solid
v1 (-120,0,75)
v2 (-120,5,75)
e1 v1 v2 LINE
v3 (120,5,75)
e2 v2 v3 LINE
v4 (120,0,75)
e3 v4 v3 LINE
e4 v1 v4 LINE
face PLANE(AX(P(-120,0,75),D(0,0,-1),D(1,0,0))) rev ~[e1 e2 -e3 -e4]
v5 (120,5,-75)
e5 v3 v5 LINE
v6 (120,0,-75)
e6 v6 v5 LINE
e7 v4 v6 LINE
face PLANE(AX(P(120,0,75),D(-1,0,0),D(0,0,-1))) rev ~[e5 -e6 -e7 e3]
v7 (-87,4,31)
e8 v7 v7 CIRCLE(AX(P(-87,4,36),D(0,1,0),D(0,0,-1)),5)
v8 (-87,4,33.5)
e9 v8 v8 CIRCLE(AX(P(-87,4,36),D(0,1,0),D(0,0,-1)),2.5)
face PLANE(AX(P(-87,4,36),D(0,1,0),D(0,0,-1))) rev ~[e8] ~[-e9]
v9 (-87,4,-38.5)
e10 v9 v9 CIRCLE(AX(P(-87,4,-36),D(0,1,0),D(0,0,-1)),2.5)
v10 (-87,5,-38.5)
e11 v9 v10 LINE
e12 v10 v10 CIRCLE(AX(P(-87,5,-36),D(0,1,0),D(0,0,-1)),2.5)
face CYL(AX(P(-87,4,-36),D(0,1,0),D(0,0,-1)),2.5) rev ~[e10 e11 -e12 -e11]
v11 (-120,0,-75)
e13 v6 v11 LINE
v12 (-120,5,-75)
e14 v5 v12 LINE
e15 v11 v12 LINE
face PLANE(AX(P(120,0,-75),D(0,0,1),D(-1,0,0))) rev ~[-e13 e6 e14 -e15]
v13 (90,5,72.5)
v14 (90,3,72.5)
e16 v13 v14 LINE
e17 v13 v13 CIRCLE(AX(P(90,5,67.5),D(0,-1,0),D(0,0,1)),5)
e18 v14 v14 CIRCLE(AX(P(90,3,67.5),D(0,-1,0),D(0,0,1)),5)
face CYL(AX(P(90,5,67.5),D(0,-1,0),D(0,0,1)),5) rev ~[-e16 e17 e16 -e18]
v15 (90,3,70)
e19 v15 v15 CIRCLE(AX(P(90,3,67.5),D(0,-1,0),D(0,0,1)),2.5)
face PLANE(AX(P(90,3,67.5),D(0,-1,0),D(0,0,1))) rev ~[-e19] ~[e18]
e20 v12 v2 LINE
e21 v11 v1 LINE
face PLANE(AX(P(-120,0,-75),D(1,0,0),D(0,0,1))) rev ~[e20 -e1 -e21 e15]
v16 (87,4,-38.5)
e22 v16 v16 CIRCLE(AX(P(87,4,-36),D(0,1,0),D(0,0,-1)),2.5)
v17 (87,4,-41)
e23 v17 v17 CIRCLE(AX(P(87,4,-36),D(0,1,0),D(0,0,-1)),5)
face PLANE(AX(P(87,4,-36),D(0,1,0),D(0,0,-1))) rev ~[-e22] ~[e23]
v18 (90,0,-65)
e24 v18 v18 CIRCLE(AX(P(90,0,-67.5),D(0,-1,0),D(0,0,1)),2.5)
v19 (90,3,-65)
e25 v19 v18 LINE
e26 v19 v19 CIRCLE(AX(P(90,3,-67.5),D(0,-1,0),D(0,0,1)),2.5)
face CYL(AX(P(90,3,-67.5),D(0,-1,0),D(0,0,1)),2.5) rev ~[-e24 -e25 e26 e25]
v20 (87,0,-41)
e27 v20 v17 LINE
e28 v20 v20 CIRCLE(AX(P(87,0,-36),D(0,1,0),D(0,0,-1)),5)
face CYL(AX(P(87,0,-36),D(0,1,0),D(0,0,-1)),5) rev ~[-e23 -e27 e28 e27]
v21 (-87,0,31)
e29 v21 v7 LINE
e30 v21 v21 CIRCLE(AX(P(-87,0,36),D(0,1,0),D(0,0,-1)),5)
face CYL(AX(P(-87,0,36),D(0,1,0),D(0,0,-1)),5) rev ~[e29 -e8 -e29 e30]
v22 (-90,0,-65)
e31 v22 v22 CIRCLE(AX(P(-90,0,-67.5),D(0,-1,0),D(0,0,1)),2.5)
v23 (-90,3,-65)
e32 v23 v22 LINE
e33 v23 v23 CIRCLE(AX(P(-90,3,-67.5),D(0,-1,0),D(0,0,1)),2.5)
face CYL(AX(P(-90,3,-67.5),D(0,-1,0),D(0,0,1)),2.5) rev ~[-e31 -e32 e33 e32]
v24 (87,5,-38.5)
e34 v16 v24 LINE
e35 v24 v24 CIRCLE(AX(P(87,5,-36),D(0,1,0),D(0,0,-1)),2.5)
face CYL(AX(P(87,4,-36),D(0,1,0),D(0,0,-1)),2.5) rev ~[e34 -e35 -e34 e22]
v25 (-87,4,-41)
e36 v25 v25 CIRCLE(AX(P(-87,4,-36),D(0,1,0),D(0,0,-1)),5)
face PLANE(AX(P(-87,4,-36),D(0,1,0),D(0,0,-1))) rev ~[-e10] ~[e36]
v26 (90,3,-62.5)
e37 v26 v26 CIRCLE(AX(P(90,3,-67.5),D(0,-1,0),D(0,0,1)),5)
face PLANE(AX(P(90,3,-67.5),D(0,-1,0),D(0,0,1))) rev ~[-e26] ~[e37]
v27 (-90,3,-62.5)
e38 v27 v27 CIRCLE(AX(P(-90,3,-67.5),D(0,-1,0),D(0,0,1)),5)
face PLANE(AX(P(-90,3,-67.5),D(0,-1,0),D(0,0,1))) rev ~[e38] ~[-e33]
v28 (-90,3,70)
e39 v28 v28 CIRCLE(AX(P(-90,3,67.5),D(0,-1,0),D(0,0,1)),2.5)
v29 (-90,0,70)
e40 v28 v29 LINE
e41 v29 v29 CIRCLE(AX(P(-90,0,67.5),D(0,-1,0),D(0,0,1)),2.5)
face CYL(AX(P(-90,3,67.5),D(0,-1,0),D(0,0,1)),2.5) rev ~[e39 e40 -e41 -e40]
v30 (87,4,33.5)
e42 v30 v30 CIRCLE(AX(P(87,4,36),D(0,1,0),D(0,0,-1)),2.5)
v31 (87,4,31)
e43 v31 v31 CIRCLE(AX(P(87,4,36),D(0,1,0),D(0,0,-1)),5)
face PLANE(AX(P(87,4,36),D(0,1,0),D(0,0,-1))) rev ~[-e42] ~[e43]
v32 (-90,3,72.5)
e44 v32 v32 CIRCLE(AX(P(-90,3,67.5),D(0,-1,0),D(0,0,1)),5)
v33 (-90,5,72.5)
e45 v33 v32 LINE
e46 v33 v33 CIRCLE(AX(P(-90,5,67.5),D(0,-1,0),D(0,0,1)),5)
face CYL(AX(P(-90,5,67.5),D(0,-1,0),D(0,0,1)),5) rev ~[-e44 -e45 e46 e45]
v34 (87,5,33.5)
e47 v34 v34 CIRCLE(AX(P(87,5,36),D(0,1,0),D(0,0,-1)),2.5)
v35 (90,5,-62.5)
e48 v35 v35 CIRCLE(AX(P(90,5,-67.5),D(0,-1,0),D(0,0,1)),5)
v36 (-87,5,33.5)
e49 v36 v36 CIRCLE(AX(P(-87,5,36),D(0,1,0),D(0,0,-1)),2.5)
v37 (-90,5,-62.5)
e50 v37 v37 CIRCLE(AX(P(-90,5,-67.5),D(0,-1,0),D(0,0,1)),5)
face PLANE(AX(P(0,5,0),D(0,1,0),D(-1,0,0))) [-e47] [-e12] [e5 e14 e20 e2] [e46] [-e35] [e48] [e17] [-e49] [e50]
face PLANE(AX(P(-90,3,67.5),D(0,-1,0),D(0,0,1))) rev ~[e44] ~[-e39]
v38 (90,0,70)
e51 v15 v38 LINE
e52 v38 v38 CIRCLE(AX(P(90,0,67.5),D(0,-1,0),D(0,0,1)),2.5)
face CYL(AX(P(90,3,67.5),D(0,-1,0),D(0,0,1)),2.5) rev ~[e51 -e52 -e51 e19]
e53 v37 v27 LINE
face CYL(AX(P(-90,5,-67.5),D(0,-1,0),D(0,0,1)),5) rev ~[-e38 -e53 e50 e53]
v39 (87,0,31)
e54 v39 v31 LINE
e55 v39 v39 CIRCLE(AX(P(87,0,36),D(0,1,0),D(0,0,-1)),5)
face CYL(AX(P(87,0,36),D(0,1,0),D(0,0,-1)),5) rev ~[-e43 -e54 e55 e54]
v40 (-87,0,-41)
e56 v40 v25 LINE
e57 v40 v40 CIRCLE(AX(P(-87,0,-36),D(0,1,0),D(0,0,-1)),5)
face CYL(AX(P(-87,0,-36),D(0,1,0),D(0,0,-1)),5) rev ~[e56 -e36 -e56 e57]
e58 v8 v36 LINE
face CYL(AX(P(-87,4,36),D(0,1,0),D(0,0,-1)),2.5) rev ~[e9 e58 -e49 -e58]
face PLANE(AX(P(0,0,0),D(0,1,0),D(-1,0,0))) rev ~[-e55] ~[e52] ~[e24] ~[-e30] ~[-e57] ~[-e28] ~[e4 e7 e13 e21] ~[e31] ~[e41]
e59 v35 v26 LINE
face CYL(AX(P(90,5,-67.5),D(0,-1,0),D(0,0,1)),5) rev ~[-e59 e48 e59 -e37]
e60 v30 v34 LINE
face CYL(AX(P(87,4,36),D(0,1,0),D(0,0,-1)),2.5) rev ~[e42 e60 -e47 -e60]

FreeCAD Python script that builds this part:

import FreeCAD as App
import Part
import Sketcher

doc = App.newDocument("Part")
params = doc.addObject("Spreadsheet::Sheet", "Params")
for row, (alias, value) in enumerate([
    ("sketch1_width", "240 mm"),
    ("sketch1_height", "150 mm"),
    ("pad1_length", "5 mm"),
    ("sketch2_diameter", "5 mm"),
    ("hole_diameter", "5 mm"),
    ("hole_cbore_diameter", "10 mm"),
    ("hole_cbore_depth", "4 mm"),
    ("sketch3_diameter", "5 mm"),
    ("hole2_diameter", "5 mm"),
    ("hole2_cbore_diameter", "10 mm"),
    ("hole2_cbore_depth", "2 mm"),
], start=1):
    params.set(f"A{row}", alias)
    params.set(f"B{row}", "=" + value)
    params.setAlias(f"B{row}", alias)

body = doc.addObject("PartDesign::Body", "Body")

sketch1 = doc.addObject("Sketcher::SketchObject", "Sketch")
body.addObject(sketch1)
sketch1.AttachmentSupport = (doc.XZ_Plane, [""])
sketch1.MapMode = "FlatFace"
sketch1.addGeometry([
    Part.LineSegment(App.Vector(120, 75, 0), App.Vector(120, -75, 0)),
    Part.LineSegment(App.Vector(120, -75, 0), App.Vector(-120, -75, 0)),
    Part.LineSegment(App.Vector(-120, -75, 0), App.Vector(-120, 75, 0)),
    Part.LineSegment(App.Vector(-120, 75, 0), App.Vector(120, 75, 0)),
], False)
sketch1.addConstraint([
    Sketcher.Constraint("Coincident", 0, 2, 1, 1),
    Sketcher.Constraint("Coincident", 1, 2, 2, 1),
    Sketcher.Constraint("Coincident", 2, 2, 3, 1),
    Sketcher.Constraint("Coincident", 3, 2, 0, 1),
    Sketcher.Constraint("Vertical", 0),
    Sketcher.Constraint("Horizontal", 1),
    Sketcher.Constraint("Vertical", 2),
    Sketcher.Constraint("Horizontal", 3),
    Sketcher.Constraint("Symmetric", 0, 2, 2, 2, -1, 1),
    Sketcher.Constraint("DistanceX", 1, 2, 1, 1, 240.0),
    Sketcher.Constraint("DistanceY", 0, 2, 0, 1, 150.0),
])
sketch1.setExpression("Constraints[9]", "Params.sketch1_width")
sketch1.setExpression("Constraints[10]", "Params.sketch1_height")
pad1 = doc.addObject("PartDesign::Pad", "Pad")
body.addObject(pad1)
pad1.Profile = sketch1
pad1.setExpression("Length", "Params.pad1_length")
pad1.Reversed = True

sketch2 = doc.addObject("Sketcher::SketchObject", "Sketch001")
body.addObject(sketch2)
sketch2.AttachmentSupport = (doc.XZ_Plane, [""])
sketch2.MapMode = "FlatFace"
sketch2.addGeometry([
    Part.Circle(App.Vector(-87, 36, 0), App.Vector(0, 0, 1), 2.5),
    Part.Circle(App.Vector(-87, -36, 0), App.Vector(0, 0, 1), 2.5),
    Part.Circle(App.Vector(87, -36, 0), App.Vector(0, 0, 1), 2.5),
    Part.Circle(App.Vector(87, 36, 0), App.Vector(0, 0, 1), 2.5),
], False)
sketch2.addConstraint([
    Sketcher.Constraint("Equal", 0, 1),
    Sketcher.Constraint("Equal", 1, 2),
    Sketcher.Constraint("Equal", 2, 3),
    Sketcher.Constraint("Symmetric", 0, 3, 2, 3, -1, 1),
    Sketcher.Constraint("Symmetric", 1, 3, 3, 3, -1, 1),
    Sketcher.Constraint("Symmetric", 1, 3, 2, 3, -2),
    Sketcher.Constraint("Diameter", 0, 5.0),
    Sketcher.Constraint("DistanceX", 0, 3, -1, 1, 87.0),
    Sketcher.Constraint("DistanceY", -1, 1, 0, 3, 36.0),
])
sketch2.setExpression("Constraints[6]", "Params.sketch2_diameter")
doc.recompute()
hole = doc.addObject("PartDesign::Hole", "Hole")
body.addObject(hole)
hole.Profile = sketch2
hole.ThreadType = "None"
hole.setExpression("Diameter", "Params.hole_diameter")
hole.DepthType = "ThroughAll"
hole.HoleCutType = "Counterbore"
hole.setExpression("HoleCutDiameter", "Params.hole_cbore_diameter")
hole.setExpression("HoleCutDepth", "Params.hole_cbore_depth")

sketch3 = doc.addObject("Sketcher::SketchObject", "Sketch002")
body.addObject(sketch3)
sketch3.AttachmentSupport = (doc.XZ_Plane, [""])
sketch3.MapMode = "FlatFace"
sketch3.AttachmentOffset = App.Placement(App.Vector(0, 0, -5), App.Rotation())
sketch3.addGeometry([
    Part.Circle(App.Vector(90, -67.5, 0), App.Vector(0, 0, 1), 2.5),
    Part.Circle(App.Vector(90, 67.5, 0), App.Vector(0, 0, 1), 2.5),
    Part.Circle(App.Vector(-90, 67.5, 0), App.Vector(0, 0, 1), 2.5),
    Part.Circle(App.Vector(-90, -67.5, 0), App.Vector(0, 0, 1), 2.5),
], False)
sketch3.addConstraint([
    Sketcher.Constraint("Equal", 0, 1),
    Sketcher.Constraint("Equal", 1, 2),
    Sketcher.Constraint("Equal", 2, 3),
    Sketcher.Constraint("Symmetric", 0, 3, 2, 3, -1, 1),
    Sketcher.Constraint("Symmetric", 1, 3, 3, 3, -1, 1),
    Sketcher.Constraint("Symmetric", 1, 3, 2, 3, -2),
    Sketcher.Constraint("Diameter", 0, 5.0),
    Sketcher.Constraint("DistanceX", -1, 1, 0, 3, 90.0),
    Sketcher.Constraint("DistanceY", 0, 3, 1, 3, 135.0),
])
sketch3.setExpression("Constraints[6]", "Params.sketch3_diameter")
doc.recompute()
hole2 = doc.addObject("PartDesign::Hole", "Hole001")
body.addObject(hole2)
hole2.Profile = sketch3
hole2.ThreadType = "None"
hole2.setExpression("Diameter", "Params.hole2_diameter")
hole2.DepthType = "ThroughAll"
hole2.HoleCutType = "Counterbore"
hole2.setExpression("HoleCutDiameter", "Params.hole2_cbore_diameter")
hole2.setExpression("HoleCutDepth", "Params.hole2_cbore_depth")
hole2.Reversed = True

doc.recompute()
